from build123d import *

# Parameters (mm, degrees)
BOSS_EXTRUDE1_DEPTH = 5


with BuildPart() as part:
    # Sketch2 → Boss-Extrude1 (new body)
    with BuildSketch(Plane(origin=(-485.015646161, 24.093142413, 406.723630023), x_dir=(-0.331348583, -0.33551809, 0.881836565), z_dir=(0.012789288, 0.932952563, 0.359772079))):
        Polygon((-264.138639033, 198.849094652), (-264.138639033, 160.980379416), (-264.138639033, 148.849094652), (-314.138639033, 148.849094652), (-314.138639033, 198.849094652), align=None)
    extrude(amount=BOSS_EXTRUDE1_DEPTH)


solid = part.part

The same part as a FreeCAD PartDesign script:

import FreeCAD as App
import Part
import Sketcher
from FreeCAD import Vector
Q = App.Units.Quantity

doc = App.newDocument("Part")
body = doc.addObject("PartDesign::Body", "Body")

sketch1 = body.newObject("Sketcher::SketchObject", "Sketch")
sketch1.Placement = App.Placement(Vector(-485.015646, 24.093142, 406.72363), App.Rotation(Vector(-0.331348583, -0.33551809, 0.881836565), Vector(0.943421724, -0.13048803, 0.304841472), Vector(0.012789288, 0.932952563, 0.359772079), "ZXY"))
sketch1.addGeometry([
    Part.LineSegment(Vector(-264, 149, 0), Vector(-264, 199, 0)),
    Part.LineSegment(Vector(-264, 199, 0), Vector(-314, 199, 0)),
    Part.LineSegment(Vector(-314, 199, 0), Vector(-314, 149, 0)),
    Part.LineSegment(Vector(-314, 149, 0), Vector(-264, 149, 0)),
], False)
sketch1.addConstraint([
    Sketcher.Constraint("Coincident", 0, 2, 1, 1),
    Sketcher.Constraint("Coincident", 1, 2, 2, 1),
    Sketcher.Constraint("Coincident", 2, 2, 3, 1),
    Sketcher.Constraint("Coincident", 3, 2, 0, 1),
    Sketcher.Constraint("Vertical", 0),
    Sketcher.Constraint("Horizontal", 1),
    Sketcher.Constraint("Vertical", 2),
    Sketcher.Constraint("Horizontal", 3),
    Sketcher.Constraint("Equal", 3, 0),
    Sketcher.Constraint("DistanceX", 1, 2, 1, 1, Q("50 mm")),
    Sketcher.Constraint("DistanceX", 0, 2, -1, 1, Q("264.138639 mm")),
    Sketcher.Constraint("DistanceY", -1, 1, 0, 2, Q("198.849094 mm")),
])
pad1 = body.newObject("PartDesign::Pad", "Pad")
pad1.Profile = sketch1
pad1.Length = 5

doc.recompute()
